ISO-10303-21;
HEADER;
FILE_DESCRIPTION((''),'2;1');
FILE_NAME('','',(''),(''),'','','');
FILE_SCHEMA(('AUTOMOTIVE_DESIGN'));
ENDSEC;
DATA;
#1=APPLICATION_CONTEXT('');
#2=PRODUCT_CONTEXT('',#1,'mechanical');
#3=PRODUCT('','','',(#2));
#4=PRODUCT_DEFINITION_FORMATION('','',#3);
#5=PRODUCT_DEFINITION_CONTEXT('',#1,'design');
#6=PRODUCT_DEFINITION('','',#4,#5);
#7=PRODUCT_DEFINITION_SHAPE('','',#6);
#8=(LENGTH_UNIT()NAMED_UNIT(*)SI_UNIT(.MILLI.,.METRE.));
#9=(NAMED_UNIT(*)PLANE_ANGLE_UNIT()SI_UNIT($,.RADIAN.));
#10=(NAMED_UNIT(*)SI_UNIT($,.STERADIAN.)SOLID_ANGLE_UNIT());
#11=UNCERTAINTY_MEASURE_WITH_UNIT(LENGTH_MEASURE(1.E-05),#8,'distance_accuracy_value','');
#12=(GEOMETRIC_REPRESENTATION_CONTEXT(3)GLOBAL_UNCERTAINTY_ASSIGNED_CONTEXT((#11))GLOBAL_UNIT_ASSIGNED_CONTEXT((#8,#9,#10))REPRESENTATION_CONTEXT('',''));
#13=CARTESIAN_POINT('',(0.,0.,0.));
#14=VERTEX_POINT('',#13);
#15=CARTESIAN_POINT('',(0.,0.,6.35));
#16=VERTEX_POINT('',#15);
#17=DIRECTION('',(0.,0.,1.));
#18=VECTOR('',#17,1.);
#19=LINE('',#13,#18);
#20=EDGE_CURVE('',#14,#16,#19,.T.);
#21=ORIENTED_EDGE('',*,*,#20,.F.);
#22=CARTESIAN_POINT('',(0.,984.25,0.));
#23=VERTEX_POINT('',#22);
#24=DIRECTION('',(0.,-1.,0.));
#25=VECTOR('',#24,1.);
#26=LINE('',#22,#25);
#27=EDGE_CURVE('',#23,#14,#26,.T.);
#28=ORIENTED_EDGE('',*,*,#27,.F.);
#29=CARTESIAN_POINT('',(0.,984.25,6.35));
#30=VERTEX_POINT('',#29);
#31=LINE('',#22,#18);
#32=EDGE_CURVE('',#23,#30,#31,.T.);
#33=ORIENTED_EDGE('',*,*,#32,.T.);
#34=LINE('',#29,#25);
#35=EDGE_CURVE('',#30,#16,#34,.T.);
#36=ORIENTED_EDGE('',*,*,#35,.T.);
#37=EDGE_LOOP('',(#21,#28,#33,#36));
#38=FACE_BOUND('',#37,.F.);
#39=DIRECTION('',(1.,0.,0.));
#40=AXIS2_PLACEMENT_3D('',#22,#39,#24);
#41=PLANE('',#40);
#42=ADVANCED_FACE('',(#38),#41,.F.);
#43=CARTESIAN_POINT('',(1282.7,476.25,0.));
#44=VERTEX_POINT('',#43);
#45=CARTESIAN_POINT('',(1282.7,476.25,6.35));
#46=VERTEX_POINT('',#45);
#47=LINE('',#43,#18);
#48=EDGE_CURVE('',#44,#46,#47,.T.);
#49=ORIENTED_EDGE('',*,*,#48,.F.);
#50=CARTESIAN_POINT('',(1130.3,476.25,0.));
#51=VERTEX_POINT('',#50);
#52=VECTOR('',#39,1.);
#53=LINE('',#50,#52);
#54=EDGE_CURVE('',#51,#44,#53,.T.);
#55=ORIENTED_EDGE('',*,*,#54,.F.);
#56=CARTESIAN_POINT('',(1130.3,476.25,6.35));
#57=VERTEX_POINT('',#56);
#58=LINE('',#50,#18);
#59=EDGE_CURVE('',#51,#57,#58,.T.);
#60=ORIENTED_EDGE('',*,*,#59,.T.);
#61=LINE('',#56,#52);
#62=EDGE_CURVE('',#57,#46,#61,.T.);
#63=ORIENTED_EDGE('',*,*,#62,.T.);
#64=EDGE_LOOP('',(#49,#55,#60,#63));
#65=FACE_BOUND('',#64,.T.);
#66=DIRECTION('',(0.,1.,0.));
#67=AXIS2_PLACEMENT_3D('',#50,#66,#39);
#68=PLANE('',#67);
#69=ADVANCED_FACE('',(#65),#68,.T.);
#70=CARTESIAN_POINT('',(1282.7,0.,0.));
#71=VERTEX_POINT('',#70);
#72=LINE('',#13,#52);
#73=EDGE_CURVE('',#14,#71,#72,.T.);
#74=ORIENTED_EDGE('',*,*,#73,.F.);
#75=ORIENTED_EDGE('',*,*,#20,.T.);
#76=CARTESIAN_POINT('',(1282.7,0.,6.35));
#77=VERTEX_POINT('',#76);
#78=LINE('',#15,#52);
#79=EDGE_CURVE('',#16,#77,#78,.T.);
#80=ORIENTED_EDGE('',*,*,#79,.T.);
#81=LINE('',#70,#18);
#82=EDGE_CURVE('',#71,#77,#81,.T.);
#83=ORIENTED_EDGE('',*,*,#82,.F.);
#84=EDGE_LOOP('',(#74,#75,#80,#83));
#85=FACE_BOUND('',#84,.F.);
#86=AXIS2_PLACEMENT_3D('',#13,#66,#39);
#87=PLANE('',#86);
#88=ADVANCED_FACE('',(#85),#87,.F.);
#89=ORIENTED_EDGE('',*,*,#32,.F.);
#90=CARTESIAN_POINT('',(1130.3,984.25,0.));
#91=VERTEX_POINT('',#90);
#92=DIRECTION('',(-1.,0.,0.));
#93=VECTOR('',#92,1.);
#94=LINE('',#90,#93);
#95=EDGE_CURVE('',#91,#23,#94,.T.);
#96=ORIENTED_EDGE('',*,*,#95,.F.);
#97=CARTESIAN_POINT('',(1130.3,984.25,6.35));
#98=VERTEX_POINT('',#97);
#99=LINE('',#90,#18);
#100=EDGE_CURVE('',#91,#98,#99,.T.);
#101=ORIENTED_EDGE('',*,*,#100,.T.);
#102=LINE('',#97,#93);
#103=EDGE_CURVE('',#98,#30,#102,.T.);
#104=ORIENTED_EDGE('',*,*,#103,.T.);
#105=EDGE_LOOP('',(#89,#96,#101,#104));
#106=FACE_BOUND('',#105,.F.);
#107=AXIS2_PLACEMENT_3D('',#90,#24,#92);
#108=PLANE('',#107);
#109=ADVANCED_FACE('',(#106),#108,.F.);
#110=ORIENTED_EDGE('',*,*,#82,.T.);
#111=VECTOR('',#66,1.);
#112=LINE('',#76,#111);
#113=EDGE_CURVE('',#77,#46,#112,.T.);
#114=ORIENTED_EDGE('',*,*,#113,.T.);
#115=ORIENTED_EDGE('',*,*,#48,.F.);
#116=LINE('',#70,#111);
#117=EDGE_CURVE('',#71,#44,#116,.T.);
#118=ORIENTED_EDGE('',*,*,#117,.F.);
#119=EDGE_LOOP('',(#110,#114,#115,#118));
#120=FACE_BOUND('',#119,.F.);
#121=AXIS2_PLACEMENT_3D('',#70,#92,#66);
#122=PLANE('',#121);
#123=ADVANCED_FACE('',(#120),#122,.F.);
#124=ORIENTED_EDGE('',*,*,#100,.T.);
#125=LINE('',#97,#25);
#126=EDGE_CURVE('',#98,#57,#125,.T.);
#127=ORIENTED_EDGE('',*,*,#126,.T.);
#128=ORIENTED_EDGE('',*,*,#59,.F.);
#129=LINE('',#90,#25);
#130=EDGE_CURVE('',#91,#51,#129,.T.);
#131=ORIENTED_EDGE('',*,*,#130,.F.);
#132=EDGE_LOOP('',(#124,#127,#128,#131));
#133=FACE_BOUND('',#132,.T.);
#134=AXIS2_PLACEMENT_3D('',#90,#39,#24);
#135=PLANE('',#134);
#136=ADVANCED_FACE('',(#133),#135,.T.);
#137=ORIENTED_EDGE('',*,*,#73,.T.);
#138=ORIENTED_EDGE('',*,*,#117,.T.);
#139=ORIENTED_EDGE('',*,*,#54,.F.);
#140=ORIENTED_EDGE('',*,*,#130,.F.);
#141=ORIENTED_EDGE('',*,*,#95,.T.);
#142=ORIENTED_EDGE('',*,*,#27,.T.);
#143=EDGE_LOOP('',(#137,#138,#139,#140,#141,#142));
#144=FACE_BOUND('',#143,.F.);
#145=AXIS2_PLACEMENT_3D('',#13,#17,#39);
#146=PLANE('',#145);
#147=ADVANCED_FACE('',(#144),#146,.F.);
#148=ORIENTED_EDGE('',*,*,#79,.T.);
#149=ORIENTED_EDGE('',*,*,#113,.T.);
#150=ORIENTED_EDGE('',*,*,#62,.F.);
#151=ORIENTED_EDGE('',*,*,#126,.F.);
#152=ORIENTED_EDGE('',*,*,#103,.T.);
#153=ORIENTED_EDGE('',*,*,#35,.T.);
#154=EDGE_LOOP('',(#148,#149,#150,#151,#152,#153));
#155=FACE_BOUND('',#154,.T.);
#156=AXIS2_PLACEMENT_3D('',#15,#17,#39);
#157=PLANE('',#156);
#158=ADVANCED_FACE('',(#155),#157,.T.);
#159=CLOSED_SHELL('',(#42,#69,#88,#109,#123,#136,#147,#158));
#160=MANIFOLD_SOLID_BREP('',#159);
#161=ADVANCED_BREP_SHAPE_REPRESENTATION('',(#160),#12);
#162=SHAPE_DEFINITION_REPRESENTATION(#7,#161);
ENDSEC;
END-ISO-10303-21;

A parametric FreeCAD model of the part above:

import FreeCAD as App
import Part
import Sketcher
from FreeCAD import Vector
Q = App.Units.Quantity

doc = App.newDocument("Part")
body = doc.addObject("PartDesign::Body", "Body")

sketch1 = body.newObject("Sketcher::SketchObject", "Sketch")
sketch1.AttachmentSupport = (doc.getObject("XY_Plane"), [""])
sketch1.MapMode = "FlatFace"
sketch1.addGeometry([
    Part.LineSegment(Vector(0, 984, 0), Vector(0, 0, 0)),
    Part.LineSegment(Vector(0, 0, 0), Vector(1283, 0, 0)),
    Part.LineSegment(Vector(1283, 0, 0), Vector(1283, 476, 0)),
    Part.LineSegment(Vector(1283, 476, 0), Vector(1130, 476, 0)),
    Part.LineSegment(Vector(1130, 476, 0), Vector(1130, 984, 0)),
    Part.LineSegment(Vector(1130, 984, 0), Vector(0, 984, 0)),
], False)
sketch1.addConstraint([
    Sketcher.Constraint("Coincident", 0, 2, 1, 1),
    Sketcher.Constraint("Coincident", 1, 2, 2, 1),
    Sketcher.Constraint("Coincident", 2, 2, 3, 1),
    Sketcher.Constraint("Coincident", 3, 2, 4, 1),
    Sketcher.Constraint("Coincident", 4, 2, 5, 1),
    Sketcher.Constraint("Coincident", 5, 2, 0, 1),
    Sketcher.Constraint("Vertical", 0),
    Sketcher.Constraint("Horizontal", 1),
    Sketcher.Constraint("Vertical", 2),
    Sketcher.Constraint("Horizontal", 3),
    Sketcher.Constraint("Vertical", 4),
    Sketcher.Constraint("Horizontal", 5),
    Sketcher.Constraint("Coincident", 0, 2, -1, 1),
    Sketcher.Constraint("DistanceY", 4, 1, 4, 2, Q("20 in")),
    Sketcher.Constraint("DistanceX", 1, 1, 1, 2, Q("50.5 in")),
    Sketcher.Constraint("DistanceX", 5, 2, 5, 1, Q("44.5 in")),
    Sketcher.Constraint("DistanceY", 0, 2, 0, 1, Q("38.75 in")),
])
pad1 = body.newObject("PartDesign::Pad", "Pad")
pad1.Profile = sketch1
pad1.Length = Q("0.25 in")

doc.recompute()
